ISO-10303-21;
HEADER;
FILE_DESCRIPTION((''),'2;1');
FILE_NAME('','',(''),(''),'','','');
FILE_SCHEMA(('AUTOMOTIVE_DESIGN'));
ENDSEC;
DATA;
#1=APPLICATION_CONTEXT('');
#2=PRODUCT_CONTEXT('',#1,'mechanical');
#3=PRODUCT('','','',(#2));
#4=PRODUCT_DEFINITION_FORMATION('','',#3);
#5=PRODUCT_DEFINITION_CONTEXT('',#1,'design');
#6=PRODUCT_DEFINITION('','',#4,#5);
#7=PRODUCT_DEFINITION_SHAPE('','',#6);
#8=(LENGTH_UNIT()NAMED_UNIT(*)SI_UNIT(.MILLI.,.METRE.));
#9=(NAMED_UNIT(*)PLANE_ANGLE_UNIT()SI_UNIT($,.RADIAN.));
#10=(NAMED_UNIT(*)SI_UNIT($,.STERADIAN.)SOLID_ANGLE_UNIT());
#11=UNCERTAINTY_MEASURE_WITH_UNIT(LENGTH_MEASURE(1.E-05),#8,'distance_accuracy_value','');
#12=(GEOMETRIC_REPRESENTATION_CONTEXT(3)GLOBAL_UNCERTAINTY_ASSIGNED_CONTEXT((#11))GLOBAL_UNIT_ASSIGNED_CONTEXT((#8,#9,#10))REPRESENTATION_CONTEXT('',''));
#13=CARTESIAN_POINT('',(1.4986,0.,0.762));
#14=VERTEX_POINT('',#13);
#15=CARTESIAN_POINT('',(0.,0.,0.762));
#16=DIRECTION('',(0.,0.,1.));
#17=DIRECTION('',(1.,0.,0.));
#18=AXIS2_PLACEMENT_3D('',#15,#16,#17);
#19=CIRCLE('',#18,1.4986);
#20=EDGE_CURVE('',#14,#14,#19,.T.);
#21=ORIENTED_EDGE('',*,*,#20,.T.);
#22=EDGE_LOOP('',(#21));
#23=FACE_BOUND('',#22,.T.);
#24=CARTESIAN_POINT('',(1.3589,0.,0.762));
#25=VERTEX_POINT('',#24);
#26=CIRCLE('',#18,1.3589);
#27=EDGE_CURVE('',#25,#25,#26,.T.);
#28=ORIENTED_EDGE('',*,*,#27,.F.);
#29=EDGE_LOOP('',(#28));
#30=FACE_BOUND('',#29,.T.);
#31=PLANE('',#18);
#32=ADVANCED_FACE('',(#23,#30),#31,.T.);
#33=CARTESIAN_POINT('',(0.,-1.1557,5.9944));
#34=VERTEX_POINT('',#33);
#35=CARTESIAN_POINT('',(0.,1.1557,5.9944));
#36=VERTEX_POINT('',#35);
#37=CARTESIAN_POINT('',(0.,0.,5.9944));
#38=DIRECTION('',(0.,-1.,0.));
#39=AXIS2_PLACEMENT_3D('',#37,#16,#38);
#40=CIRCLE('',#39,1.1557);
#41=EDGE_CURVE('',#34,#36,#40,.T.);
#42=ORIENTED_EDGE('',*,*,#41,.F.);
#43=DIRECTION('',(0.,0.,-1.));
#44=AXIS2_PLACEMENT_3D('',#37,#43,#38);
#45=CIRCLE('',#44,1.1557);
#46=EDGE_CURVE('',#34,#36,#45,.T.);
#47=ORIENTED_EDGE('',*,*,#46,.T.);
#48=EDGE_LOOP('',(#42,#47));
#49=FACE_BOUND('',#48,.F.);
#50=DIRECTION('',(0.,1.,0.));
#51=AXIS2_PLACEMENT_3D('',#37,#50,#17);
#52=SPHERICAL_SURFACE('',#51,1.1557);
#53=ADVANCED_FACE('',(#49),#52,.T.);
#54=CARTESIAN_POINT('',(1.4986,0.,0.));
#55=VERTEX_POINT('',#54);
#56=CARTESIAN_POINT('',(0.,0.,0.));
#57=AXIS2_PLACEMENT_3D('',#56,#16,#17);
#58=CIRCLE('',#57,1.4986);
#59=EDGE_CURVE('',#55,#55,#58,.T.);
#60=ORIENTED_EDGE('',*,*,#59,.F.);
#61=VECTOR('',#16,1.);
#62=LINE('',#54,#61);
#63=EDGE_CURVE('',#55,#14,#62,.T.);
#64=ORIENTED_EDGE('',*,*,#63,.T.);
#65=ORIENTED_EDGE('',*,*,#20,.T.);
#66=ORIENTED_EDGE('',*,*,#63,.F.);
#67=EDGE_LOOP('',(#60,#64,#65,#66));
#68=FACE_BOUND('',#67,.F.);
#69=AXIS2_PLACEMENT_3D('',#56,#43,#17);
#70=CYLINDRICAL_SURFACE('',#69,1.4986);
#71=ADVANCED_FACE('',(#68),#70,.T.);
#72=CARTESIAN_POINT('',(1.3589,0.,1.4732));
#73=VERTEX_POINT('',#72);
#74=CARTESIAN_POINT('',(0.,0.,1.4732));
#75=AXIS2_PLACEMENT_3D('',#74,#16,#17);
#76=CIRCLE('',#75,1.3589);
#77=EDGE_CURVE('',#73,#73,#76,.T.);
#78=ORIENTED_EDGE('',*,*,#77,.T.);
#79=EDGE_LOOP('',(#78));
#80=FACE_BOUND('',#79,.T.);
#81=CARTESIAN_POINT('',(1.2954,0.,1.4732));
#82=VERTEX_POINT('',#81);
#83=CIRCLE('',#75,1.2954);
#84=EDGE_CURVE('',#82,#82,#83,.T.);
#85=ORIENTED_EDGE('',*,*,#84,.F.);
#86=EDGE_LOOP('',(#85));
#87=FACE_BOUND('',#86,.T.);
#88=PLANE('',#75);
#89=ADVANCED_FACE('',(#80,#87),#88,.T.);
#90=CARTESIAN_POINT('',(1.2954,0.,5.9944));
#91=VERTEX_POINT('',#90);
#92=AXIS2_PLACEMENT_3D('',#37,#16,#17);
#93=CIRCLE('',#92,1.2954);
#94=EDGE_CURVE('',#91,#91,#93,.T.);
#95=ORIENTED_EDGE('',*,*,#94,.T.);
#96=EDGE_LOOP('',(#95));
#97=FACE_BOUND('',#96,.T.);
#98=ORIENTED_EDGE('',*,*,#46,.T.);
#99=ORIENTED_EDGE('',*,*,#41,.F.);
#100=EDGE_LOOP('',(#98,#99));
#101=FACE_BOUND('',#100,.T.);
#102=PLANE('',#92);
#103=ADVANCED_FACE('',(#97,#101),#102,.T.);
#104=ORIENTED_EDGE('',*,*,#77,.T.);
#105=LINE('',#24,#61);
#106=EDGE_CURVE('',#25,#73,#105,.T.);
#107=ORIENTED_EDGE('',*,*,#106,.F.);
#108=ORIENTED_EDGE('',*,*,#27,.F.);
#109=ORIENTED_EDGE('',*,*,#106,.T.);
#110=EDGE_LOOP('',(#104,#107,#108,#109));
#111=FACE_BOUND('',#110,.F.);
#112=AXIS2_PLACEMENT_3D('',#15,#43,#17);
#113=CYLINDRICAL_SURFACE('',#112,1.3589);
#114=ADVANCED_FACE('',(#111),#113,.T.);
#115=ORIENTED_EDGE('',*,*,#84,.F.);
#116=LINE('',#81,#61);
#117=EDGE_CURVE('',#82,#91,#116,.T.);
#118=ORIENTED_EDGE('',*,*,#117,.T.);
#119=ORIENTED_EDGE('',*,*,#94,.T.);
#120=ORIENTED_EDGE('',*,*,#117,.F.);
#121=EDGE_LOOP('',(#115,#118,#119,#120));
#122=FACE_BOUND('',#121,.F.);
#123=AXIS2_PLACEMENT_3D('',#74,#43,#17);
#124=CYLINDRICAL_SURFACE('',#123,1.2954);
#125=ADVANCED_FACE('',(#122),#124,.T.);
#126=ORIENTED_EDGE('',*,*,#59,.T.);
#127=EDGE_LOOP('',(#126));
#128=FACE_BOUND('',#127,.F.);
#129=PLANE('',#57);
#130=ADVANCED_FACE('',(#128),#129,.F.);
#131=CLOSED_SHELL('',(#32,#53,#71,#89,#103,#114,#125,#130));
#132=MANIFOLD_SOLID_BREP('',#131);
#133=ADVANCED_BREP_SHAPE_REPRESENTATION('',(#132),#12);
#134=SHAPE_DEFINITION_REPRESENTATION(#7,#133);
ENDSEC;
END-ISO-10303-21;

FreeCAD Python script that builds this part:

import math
import FreeCAD as App
import Part
import Sketcher
Q = App.Units.Quantity

doc = App.newDocument("Part")
params = doc.addObject("Spreadsheet::Sheet", "Params")
for row, (alias, value) in enumerate([
    ("sketch1_diameter", "0.118 in"),
    ("pad1_length", "0.03 in"),
    ("sketch2_diameter", "0.107 in"),
    ("pad2_length", "0.028 in"),
    ("sketch3_diameter", "0.102 in"),
    ("pad3_length", "0.178 in"),
    ("revolution_angle", "180 deg"),
], start=1):
    params.set(f"A{row}", alias)
    params.set(f"B{row}", "=" + value)
    params.setAlias(f"B{row}", alias)

body = doc.addObject("PartDesign::Body", "Body")

sketch1 = doc.addObject("Sketcher::SketchObject", "Sketch")
body.addObject(sketch1)
sketch1.AttachmentSupport = (doc.XY_Plane, [""])
sketch1.MapMode = "FlatFace"
sketch1.addGeometry(Part.Circle(App.Vector(0, 0, 0), App.Vector(0, 0, 1), 1.5), False)
sketch1.addConstraint(Sketcher.Constraint("Coincident", 0, 3, -1, 1))
sketch1.addConstraint(Sketcher.Constraint("Diameter", 0, Q("0.118 in")))
sketch1.setExpression("Constraints[1]", "Params.sketch1_diameter")
pad1 = doc.addObject("PartDesign::Pad", "Pad")
body.addObject(pad1)
pad1.Profile = sketch1
pad1.setExpression("Length", "Params.pad1_length")

sketch2 = doc.addObject("Sketcher::SketchObject", "Sketch001")
body.addObject(sketch2)
sketch2.AttachmentSupport = (doc.XY_Plane, [""])
sketch2.MapMode = "FlatFace"
sketch2.AttachmentOffset = App.Placement(App.Vector(0, 0, 0.03 * 25.4), App.Rotation())
sketch2.addGeometry(Part.Circle(App.Vector(0, 0, 0), App.Vector(0, 0, 1), 1.4), False)
sketch2.addConstraint(Sketcher.Constraint("Coincident", 0, 3, -1, 1))
sketch2.addConstraint(Sketcher.Constraint("Diameter", 0, Q("0.107 in")))
sketch2.setExpression("Constraints[1]", "Params.sketch2_diameter")
pad2 = doc.addObject("PartDesign::Pad", "Pad001")
body.addObject(pad2)
pad2.Profile = sketch2
pad2.setExpression("Length", "Params.pad2_length")

sketch3 = doc.addObject("Sketcher::SketchObject", "Sketch002")
body.addObject(sketch3)
sketch3.AttachmentSupport = (doc.XY_Plane, [""])
sketch3.MapMode = "FlatFace"
sketch3.AttachmentOffset = App.Placement(App.Vector(0, 0, 0.058 * 25.4), App.Rotation())
sketch3.addGeometry(Part.Circle(App.Vector(0, 0, 0), App.Vector(0, 0, 1), 1.3), False)
sketch3.addConstraint(Sketcher.Constraint("Coincident", 0, 3, -1, 1))
sketch3.addConstraint(Sketcher.Constraint("Diameter", 0, Q("0.102 in")))
sketch3.setExpression("Constraints[1]", "Params.sketch3_diameter")
pad3 = doc.addObject("PartDesign::Pad", "Pad002")
body.addObject(pad3)
pad3.Profile = sketch3
pad3.setExpression("Length", "Params.pad3_length")

sketch4 = doc.addObject("Sketcher::SketchObject", "Sketch003")
body.addObject(sketch4)
sketch4.AttachmentSupport = (doc.XY_Plane, [""])
sketch4.MapMode = "FlatFace"
sketch4.AttachmentOffset = App.Placement(App.Vector(0, 0, 0.236 * 25.4), App.Rotation())
sketch4.addGeometry(Part.ArcOfCircle(Part.Circle(App.Vector(0, 0, 0), App.Vector(0, 0, 1), 1.2), math.radians(-90), math.radians(90)), False)
sketch4.addGeometry(Part.LineSegment(App.Vector(0, 1.2, 0), App.Vector(0, -1.2, 0)), False)
sketch4.addConstraint(Sketcher.Constraint("Coincident", 0, 1, 1, 2))
sketch4.addConstraint(Sketcher.Constraint("Coincident", 1, 1, 0, 2))
sketch4.addConstraint(Sketcher.Constraint("Vertical", 1))
sketch4.addConstraint(Sketcher.Constraint("Coincident", 0, 3, -1, 1))
sketch4.addConstraint(Sketcher.Constraint("PointOnObject", 0, 1, -2))
sketch4.addConstraint(Sketcher.Constraint("Radius", 0, Q("0.0455 in")))
revolution = doc.addObject("PartDesign::Revolution", "Revolution")
body.addObject(revolution)
revolution.Profile = sketch4
revolution.ReferenceAxis = (sketch4, ["V_Axis"])
revolution.setExpression("Angle", "Params.revolution_angle")
revolution.Reversed = True

doc.recompute()
